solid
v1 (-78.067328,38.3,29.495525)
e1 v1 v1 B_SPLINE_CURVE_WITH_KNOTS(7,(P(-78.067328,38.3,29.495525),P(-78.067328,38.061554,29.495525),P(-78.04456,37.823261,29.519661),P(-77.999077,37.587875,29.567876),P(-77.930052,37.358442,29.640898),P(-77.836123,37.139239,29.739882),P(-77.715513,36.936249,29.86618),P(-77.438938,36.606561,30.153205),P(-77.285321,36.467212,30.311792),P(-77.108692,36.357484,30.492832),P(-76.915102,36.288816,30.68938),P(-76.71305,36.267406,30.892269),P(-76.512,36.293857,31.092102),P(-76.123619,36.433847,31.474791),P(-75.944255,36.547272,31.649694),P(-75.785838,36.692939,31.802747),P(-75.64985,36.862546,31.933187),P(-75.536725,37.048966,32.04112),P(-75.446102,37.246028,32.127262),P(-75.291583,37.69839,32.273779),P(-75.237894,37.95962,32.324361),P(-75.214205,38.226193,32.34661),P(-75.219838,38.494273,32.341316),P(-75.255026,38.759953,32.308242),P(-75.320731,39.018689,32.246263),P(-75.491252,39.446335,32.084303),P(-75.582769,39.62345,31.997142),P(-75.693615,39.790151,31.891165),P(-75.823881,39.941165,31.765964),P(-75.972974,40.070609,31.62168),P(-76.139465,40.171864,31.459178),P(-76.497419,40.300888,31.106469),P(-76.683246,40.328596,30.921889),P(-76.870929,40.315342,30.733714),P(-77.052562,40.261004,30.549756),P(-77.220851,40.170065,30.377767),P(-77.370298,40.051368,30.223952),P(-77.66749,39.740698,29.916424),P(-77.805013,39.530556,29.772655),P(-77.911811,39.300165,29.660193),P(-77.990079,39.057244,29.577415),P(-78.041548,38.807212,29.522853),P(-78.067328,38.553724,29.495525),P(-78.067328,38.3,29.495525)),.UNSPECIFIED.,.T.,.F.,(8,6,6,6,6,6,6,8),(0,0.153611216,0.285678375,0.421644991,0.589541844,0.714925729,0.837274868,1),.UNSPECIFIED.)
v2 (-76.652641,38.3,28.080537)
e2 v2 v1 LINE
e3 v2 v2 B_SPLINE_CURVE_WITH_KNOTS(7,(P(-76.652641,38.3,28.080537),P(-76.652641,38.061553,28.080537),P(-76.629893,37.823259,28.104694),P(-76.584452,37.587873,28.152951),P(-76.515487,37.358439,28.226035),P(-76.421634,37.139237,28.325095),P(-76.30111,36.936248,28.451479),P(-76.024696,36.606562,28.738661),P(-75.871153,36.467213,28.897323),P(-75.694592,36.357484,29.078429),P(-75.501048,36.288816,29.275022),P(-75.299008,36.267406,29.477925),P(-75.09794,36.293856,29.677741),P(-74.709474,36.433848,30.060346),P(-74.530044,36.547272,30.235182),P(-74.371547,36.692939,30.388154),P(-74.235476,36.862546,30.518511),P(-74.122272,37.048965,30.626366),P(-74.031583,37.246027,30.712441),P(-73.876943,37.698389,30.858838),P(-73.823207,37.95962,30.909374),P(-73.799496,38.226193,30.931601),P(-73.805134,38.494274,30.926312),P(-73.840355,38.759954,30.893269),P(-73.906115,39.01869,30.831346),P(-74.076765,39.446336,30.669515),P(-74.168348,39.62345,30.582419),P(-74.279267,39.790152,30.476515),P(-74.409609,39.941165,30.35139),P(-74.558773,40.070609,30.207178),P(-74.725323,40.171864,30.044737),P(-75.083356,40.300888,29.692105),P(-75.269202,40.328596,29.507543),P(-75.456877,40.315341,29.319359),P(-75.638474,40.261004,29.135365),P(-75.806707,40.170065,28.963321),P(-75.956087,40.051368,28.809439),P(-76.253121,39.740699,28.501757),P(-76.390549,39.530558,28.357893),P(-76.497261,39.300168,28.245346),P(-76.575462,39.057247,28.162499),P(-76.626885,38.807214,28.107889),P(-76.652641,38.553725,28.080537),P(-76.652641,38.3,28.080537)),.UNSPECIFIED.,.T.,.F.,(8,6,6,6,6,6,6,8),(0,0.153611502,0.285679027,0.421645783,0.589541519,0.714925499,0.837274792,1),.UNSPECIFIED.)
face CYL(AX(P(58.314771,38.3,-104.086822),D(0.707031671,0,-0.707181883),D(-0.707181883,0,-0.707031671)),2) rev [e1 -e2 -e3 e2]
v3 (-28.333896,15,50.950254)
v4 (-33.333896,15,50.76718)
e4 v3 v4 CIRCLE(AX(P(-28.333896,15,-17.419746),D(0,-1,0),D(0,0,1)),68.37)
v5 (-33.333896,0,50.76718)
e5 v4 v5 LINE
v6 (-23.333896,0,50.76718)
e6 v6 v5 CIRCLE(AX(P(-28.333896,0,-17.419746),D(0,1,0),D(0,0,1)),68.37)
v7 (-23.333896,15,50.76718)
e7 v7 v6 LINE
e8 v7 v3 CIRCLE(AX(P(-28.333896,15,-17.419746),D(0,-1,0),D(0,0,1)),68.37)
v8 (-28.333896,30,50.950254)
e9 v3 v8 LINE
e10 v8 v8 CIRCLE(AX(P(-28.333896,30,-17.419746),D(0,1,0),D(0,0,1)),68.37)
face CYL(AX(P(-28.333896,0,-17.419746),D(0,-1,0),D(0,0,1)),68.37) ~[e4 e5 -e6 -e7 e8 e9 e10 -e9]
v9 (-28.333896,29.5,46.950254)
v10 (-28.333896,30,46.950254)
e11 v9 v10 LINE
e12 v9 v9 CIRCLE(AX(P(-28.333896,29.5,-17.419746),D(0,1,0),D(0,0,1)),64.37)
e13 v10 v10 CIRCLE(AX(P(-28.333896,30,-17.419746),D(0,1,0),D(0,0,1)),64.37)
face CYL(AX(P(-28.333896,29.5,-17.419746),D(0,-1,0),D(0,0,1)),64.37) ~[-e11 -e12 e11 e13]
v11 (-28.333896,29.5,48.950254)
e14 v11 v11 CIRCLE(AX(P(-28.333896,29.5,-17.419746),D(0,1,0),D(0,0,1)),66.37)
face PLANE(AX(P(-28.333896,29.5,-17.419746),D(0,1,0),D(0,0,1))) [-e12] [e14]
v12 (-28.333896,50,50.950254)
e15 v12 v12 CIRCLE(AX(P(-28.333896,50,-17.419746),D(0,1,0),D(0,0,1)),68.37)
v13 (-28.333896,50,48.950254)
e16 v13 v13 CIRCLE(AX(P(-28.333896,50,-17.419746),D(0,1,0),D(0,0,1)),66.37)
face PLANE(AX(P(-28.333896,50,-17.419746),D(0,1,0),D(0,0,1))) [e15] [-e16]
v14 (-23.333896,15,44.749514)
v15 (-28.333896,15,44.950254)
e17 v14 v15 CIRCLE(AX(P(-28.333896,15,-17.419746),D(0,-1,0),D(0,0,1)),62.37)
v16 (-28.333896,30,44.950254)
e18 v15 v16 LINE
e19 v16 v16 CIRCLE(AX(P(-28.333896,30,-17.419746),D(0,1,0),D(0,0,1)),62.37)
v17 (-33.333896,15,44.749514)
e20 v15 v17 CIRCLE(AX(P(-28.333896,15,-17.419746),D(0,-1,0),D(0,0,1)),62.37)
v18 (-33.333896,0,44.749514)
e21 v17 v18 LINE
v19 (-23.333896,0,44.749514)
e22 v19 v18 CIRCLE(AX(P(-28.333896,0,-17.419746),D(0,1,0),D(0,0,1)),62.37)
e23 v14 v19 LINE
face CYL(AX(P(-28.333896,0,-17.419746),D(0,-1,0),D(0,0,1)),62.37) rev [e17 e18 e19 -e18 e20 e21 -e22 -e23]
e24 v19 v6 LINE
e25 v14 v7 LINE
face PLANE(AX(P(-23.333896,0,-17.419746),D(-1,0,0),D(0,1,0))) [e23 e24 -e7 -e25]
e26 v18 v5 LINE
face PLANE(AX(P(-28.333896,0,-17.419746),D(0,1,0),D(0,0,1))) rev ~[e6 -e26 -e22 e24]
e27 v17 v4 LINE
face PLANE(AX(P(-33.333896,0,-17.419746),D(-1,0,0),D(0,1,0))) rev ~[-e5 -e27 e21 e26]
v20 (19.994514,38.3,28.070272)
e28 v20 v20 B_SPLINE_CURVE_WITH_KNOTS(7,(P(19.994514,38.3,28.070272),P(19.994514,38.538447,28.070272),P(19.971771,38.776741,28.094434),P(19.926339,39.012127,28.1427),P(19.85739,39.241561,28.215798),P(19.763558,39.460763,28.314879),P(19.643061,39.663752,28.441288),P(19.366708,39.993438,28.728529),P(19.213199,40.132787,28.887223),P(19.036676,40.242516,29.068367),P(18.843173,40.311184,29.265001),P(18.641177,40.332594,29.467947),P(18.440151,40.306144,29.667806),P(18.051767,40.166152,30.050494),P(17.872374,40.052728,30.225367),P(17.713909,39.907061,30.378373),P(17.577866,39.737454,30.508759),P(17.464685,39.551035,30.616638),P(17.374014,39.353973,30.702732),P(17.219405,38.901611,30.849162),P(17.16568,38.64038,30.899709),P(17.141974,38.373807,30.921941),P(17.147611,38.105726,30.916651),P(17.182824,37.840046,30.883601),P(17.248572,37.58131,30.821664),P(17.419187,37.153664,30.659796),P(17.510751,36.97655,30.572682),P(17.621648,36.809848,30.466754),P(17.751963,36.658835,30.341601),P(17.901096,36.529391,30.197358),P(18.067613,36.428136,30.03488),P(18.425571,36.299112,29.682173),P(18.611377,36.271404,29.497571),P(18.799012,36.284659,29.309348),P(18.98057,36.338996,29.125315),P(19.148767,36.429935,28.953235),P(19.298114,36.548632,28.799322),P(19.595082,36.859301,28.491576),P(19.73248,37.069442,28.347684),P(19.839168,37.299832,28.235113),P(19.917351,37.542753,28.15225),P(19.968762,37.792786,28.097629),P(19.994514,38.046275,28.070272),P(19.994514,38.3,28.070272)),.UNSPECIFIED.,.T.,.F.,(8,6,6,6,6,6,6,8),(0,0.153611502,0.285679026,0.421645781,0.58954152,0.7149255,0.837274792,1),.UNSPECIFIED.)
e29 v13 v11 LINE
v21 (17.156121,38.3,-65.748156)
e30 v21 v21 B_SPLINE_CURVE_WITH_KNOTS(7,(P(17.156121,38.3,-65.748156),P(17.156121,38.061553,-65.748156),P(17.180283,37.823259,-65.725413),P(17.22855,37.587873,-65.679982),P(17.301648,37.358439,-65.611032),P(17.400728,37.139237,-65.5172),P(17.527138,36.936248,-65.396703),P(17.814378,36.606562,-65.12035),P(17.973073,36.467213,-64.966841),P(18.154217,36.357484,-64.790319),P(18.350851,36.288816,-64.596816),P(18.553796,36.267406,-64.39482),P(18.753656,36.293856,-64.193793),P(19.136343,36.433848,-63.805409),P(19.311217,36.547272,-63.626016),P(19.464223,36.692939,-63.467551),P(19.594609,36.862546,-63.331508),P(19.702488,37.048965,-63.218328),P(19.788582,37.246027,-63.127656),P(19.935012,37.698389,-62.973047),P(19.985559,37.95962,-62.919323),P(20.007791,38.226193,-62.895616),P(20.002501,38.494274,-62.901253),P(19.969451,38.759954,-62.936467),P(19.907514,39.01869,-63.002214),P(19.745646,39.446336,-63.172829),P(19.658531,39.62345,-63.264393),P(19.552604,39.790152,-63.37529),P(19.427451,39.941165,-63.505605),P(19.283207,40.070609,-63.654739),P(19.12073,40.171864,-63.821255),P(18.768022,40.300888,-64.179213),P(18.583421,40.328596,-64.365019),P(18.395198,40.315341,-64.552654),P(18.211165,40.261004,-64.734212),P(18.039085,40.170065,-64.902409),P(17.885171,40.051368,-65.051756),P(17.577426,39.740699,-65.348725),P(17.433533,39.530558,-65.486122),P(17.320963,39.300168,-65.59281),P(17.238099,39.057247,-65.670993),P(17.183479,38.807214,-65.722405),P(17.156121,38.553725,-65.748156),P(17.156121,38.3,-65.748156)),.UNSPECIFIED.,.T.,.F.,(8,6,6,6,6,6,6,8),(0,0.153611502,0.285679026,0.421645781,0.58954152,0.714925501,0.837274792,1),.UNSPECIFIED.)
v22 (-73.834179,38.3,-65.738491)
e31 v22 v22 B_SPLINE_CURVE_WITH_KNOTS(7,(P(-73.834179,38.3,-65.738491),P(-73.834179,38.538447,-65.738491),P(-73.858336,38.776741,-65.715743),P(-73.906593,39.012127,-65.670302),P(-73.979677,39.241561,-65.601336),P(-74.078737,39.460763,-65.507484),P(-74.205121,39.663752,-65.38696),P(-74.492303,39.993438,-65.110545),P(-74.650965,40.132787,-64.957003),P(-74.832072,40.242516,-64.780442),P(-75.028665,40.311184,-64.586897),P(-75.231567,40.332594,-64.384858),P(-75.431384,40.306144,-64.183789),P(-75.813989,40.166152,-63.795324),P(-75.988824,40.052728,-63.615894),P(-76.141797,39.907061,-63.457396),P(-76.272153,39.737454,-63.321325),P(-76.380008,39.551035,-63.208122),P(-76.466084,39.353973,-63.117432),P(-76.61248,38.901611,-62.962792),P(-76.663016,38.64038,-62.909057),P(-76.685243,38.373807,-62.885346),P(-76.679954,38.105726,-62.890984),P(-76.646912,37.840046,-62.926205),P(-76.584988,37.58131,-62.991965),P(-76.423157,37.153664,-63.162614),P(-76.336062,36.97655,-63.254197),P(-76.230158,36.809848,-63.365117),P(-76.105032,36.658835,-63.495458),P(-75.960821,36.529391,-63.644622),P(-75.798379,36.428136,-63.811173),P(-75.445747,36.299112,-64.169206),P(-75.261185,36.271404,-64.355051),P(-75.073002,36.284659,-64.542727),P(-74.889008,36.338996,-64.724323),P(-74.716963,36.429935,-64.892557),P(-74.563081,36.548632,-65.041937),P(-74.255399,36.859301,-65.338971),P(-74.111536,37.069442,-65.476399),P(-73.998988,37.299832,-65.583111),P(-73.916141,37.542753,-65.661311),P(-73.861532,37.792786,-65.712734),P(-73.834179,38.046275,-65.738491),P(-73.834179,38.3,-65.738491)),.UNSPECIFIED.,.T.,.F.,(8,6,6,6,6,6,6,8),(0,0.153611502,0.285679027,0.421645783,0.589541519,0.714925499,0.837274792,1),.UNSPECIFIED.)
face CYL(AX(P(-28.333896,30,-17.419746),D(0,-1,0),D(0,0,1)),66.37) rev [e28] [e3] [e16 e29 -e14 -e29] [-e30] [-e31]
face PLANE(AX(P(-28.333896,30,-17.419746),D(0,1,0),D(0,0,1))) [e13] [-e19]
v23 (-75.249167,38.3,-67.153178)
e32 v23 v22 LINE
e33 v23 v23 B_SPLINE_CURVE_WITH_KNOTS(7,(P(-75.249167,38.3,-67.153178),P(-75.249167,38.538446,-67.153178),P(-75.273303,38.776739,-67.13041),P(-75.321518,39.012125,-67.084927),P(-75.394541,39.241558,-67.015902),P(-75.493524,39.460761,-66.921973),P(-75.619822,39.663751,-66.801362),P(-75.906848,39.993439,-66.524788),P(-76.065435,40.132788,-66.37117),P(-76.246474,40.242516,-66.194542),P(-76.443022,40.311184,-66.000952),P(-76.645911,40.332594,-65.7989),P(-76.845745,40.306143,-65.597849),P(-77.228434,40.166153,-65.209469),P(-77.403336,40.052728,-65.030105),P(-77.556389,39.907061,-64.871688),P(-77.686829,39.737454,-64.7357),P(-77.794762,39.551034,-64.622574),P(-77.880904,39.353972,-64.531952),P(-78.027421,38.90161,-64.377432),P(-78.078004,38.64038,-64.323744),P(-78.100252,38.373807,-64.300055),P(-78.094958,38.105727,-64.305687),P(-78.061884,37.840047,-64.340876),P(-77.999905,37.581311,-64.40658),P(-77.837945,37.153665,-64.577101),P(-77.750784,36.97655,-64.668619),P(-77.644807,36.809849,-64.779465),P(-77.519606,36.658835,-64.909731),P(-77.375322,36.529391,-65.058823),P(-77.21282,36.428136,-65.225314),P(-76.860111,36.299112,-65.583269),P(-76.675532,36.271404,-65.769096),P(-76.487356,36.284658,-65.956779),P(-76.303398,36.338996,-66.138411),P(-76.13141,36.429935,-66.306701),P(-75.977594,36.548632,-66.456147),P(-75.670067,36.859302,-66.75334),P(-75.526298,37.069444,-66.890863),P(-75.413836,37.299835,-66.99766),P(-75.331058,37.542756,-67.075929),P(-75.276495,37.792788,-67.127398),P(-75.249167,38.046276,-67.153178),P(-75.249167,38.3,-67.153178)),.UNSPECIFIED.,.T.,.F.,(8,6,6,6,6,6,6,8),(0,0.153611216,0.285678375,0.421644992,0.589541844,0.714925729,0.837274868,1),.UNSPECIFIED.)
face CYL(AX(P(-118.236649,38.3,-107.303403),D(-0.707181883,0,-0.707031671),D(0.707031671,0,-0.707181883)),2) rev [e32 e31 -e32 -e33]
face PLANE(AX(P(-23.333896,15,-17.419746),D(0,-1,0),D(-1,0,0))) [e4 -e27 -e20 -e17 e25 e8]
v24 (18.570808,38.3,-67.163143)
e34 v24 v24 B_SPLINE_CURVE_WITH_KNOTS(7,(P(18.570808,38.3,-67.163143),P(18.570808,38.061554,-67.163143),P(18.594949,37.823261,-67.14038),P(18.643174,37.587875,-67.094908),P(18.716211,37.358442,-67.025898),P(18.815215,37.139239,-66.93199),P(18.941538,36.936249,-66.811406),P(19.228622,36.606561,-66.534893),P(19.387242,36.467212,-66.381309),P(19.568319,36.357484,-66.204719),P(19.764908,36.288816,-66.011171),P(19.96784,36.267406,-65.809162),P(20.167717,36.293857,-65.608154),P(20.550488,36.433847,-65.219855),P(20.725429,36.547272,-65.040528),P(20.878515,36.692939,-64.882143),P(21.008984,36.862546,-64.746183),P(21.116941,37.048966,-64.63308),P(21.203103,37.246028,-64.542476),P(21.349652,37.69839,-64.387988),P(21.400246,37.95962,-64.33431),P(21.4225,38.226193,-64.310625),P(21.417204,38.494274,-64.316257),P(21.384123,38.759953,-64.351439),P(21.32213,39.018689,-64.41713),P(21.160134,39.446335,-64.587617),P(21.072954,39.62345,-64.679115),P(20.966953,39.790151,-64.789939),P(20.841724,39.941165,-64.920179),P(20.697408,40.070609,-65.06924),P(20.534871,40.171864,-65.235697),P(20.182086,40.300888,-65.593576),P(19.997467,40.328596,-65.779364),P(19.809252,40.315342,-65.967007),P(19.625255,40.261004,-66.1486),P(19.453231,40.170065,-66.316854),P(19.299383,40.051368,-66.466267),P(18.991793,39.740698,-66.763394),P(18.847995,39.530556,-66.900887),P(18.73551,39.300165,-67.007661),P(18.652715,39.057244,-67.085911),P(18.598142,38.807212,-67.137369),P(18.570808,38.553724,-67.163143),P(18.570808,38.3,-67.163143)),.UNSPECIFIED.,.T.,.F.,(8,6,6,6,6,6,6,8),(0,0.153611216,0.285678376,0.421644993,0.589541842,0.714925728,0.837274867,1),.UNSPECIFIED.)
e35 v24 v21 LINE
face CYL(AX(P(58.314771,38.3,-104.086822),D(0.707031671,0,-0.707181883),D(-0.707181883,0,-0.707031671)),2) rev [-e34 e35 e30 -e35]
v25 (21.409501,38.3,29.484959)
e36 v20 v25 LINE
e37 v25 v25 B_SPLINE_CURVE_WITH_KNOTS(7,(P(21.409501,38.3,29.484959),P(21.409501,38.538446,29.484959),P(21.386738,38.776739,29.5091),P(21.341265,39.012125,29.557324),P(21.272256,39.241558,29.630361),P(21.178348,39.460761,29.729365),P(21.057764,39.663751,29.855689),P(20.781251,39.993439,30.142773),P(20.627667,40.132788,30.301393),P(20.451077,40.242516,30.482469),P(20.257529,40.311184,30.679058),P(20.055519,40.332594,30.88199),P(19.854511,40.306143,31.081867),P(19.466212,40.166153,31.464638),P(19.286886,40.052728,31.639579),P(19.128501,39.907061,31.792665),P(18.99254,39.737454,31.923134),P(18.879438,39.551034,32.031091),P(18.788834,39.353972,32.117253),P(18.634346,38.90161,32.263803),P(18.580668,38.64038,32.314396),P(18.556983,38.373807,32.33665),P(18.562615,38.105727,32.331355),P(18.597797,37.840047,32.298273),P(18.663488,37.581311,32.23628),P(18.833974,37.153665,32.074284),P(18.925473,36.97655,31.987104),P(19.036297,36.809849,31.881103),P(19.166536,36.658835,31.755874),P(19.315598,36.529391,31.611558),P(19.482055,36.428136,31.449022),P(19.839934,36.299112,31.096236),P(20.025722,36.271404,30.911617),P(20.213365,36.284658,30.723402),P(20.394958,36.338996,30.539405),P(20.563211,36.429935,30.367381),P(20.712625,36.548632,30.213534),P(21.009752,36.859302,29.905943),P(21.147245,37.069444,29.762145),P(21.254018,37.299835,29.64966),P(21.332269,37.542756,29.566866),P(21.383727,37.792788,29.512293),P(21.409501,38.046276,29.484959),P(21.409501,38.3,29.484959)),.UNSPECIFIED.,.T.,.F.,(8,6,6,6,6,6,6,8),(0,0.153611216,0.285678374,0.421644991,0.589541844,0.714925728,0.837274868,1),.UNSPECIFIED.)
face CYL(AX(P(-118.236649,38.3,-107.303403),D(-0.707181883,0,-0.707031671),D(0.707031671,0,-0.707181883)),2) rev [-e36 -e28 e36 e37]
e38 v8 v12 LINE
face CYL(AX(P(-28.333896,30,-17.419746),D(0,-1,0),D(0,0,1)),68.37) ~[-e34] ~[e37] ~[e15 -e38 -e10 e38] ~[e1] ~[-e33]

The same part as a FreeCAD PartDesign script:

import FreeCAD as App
import Part
import Sketcher
Q = App.Units.Quantity


def add_polygon(sketch, points):
    """Adds a closed chain of lines whose ends are joined by coincident constraints."""
    first, n = sketch.GeometryCount, len(points)
    for a, b in zip(points, points[1:] + points[:1]):
        sketch.addGeometry(Part.LineSegment(App.Vector(*a, 0), App.Vector(*b, 0)), False)
    for i in range(n):
        sketch.addConstraint(Sketcher.Constraint("Coincident", first + i, 2, first + (i + 1) % n, 1))

doc = App.newDocument("Part")
body = doc.addObject("PartDesign::Body", "Body")

sketch1 = doc.addObject("Sketcher::SketchObject", "Sketch")
body.addObject(sketch1)
sketch1.AttachmentSupport = (doc.XZ_Plane, [""])
sketch1.MapMode = "FlatFace"
sketch1.addGeometry([
    Part.Circle(App.Vector(-28, -17, 0), App.Vector(0, 0, 1), 68),
    Part.Circle(App.Vector(-28, -17, 0), App.Vector(0, 0, 1), 62),
], False)
sketch1.addConstraint([
    Sketcher.Constraint("Coincident", 1, 3, 0, 3),
    Sketcher.Constraint("Diameter", 0, Q("136.74 mm")),
    Sketcher.Constraint("Diameter", 1, Q("124.74 mm")),
    Sketcher.Constraint("DistanceX", 0, 3, -1, 1, Q("28.333896 mm")),
    Sketcher.Constraint("DistanceY", 0, 3, -1, 1, Q("17.419746 mm")),
])
pad1 = doc.addObject("PartDesign::Pad", "Pad")
body.addObject(pad1)
pad1.Profile = sketch1
pad1.Length = 30
pad1.Reversed = True

sketch2 = doc.addObject("Sketcher::SketchObject", "Sketch001")
body.addObject(sketch2)
sketch2.AttachmentSupport = (doc.XZ_Plane, [""])
sketch2.MapMode = "FlatFace"
sketch2.AttachmentOffset = App.Placement(App.Vector(0, 0, -30), App.Rotation())
sketch2.addGeometry([
    Part.Circle(App.Vector(-28, -17, 0), App.Vector(0, 0, 1), 68),
    Part.Circle(App.Vector(-28, -17, 0), App.Vector(0, 0, 1), 66),
], False)
sketch2.addConstraint([
    Sketcher.Constraint("Coincident", 1, 3, 0, 3),
    Sketcher.Constraint("Diameter", 0, Q("136.74 mm")),
    Sketcher.Constraint("Diameter", 1, Q("132.74 mm")),
    Sketcher.Constraint("DistanceX", 0, 3, -1, 1, Q("28.333896 mm")),
    Sketcher.Constraint("DistanceY", 0, 3, -1, 1, Q("17.419746 mm")),
])
pad2 = doc.addObject("PartDesign::Pad", "Pad001")
body.addObject(pad2)
pad2.Profile = sketch2
pad2.Length = 20
pad2.Reversed = True

sketch3 = doc.addObject("Sketcher::SketchObject", "Sketch002")
body.addObject(sketch3)
sketch3.AttachmentSupport = (doc.XZ_Plane, [""])
sketch3.MapMode = "FlatFace"
sketch3.AttachmentOffset = App.Placement(App.Vector(0, 0, -29.5), App.Rotation())
sketch3.addGeometry([
    Part.Circle(App.Vector(-28, -17, 0), App.Vector(0, 0, 1), 66),
    Part.Circle(App.Vector(-28, -17, 0), App.Vector(0, 0, 1), 64),
], False)
sketch3.addConstraint([
    Sketcher.Constraint("Coincident", 1, 3, 0, 3),
    Sketcher.Constraint("Diameter", 0, Q("132.74 mm")),
    Sketcher.Constraint("Diameter", 1, Q("128.74 mm")),
    Sketcher.Constraint("DistanceX", 0, 3, -1, 1, Q("28.333896 mm")),
    Sketcher.Constraint("DistanceY", 0, 3, -1, 1, Q("17.419746 mm")),
])
pocket1 = doc.addObject("PartDesign::Pocket", "Pocket")
body.addObject(pocket1)
pocket1.Profile = sketch3
pocket1.Length = 0.5

sketch4 = doc.addObject("Sketcher::SketchObject", "Sketch003")
body.addObject(sketch4)
sketch4.AttachmentSupport = (doc.XY_Plane, [""])
sketch4.MapMode = "FlatFace"
sketch4.AttachmentOffset = App.Placement(App.Vector(0, 0, -17.419746), App.Rotation())
add_polygon(sketch4, [(-23, 15), (-23, 0), (-33, 0), (-33, 15)])
sketch4.addConstraint([
    Sketcher.Constraint("Vertical", 0),
    Sketcher.Constraint("Horizontal", 1),
    Sketcher.Constraint("Vertical", 2),
    Sketcher.Constraint("Horizontal", 3),
    Sketcher.Constraint("PointOnObject", 0, 2, -1),
    Sketcher.Constraint("DistanceX", 1, 2, 1, 1, Q("10 mm")),
    Sketcher.Constraint("DistanceY", 0, 2, 0, 1, Q("15 mm")),
    Sketcher.Constraint("DistanceX", 0, 2, -1, 1, Q("23.333896 mm")),
])
pocket2 = doc.addObject("PartDesign::Pocket", "Pocket001")
body.addObject(pocket2)
pocket2.Profile = sketch4
pocket2.Type = "ThroughAll"
pocket2.Reversed = True

sketch5 = doc.addObject("Sketcher::SketchObject", "Sketch004")
body.addObject(sketch5)
sketch5.Placement = App.Placement(App.Vector(-27.926429, 72.899933, -17.012366), App.Rotation(App.Vector(0.707181883, 0, 0.707031671), App.Vector(0, 0.999999999, 0), App.Vector(-0.707031671, 0, 0.707181883), "ZXY"))
sketch5.addGeometry(Part.Circle(App.Vector(-0.6, -34.6, 0), App.Vector(0, 0, 1), 2), False)
sketch5.addConstraint([
    Sketcher.Constraint("Diameter", 0, Q("4 mm")),
    Sketcher.Constraint("DistanceX", 0, 3, -1, 1, Q("0.576184 mm")),
    Sketcher.Constraint("DistanceY", 0, 3, -1, 1, Q("34.599933 mm")),
])
pocket3 = doc.addObject("PartDesign::Pocket", "Pocket002")
body.addObject(pocket3)
pocket3.Profile = sketch5
pocket3.Type = "ThroughAll"
pocket3.Midplane = True

sketch6 = doc.addObject("Sketcher::SketchObject", "Sketch005")
body.addObject(sketch6)
sketch6.Placement = App.Placement(App.Vector(-32.743646, 72.899933, -13.00906), App.Rotation(App.Vector(0.707031671, 0, -0.707181883), App.Vector(0, 0.999999999, 0), App.Vector(0.707181883, 0, 0.707031671), "ZXY"))
sketch6.addGeometry(Part.Circle(App.Vector(6.2, -34.6, 0), App.Vector(0, 0, 1), 2), False)
sketch6.addConstraint([
    Sketcher.Constraint("Diameter", 0, Q("4 mm")),
    Sketcher.Constraint("DistanceX", -1, 1, 0, 3, Q("6.23699 mm")),
    Sketcher.Constraint("DistanceY", 0, 3, -1, 1, Q("34.599933 mm")),
])
pocket4 = doc.addObject("PartDesign::Pocket", "Pocket003")
body.addObject(pocket4)
pocket4.Profile = sketch6
pocket4.Type = "ThroughAll"
pocket4.Midplane = True

doc.recompute()
